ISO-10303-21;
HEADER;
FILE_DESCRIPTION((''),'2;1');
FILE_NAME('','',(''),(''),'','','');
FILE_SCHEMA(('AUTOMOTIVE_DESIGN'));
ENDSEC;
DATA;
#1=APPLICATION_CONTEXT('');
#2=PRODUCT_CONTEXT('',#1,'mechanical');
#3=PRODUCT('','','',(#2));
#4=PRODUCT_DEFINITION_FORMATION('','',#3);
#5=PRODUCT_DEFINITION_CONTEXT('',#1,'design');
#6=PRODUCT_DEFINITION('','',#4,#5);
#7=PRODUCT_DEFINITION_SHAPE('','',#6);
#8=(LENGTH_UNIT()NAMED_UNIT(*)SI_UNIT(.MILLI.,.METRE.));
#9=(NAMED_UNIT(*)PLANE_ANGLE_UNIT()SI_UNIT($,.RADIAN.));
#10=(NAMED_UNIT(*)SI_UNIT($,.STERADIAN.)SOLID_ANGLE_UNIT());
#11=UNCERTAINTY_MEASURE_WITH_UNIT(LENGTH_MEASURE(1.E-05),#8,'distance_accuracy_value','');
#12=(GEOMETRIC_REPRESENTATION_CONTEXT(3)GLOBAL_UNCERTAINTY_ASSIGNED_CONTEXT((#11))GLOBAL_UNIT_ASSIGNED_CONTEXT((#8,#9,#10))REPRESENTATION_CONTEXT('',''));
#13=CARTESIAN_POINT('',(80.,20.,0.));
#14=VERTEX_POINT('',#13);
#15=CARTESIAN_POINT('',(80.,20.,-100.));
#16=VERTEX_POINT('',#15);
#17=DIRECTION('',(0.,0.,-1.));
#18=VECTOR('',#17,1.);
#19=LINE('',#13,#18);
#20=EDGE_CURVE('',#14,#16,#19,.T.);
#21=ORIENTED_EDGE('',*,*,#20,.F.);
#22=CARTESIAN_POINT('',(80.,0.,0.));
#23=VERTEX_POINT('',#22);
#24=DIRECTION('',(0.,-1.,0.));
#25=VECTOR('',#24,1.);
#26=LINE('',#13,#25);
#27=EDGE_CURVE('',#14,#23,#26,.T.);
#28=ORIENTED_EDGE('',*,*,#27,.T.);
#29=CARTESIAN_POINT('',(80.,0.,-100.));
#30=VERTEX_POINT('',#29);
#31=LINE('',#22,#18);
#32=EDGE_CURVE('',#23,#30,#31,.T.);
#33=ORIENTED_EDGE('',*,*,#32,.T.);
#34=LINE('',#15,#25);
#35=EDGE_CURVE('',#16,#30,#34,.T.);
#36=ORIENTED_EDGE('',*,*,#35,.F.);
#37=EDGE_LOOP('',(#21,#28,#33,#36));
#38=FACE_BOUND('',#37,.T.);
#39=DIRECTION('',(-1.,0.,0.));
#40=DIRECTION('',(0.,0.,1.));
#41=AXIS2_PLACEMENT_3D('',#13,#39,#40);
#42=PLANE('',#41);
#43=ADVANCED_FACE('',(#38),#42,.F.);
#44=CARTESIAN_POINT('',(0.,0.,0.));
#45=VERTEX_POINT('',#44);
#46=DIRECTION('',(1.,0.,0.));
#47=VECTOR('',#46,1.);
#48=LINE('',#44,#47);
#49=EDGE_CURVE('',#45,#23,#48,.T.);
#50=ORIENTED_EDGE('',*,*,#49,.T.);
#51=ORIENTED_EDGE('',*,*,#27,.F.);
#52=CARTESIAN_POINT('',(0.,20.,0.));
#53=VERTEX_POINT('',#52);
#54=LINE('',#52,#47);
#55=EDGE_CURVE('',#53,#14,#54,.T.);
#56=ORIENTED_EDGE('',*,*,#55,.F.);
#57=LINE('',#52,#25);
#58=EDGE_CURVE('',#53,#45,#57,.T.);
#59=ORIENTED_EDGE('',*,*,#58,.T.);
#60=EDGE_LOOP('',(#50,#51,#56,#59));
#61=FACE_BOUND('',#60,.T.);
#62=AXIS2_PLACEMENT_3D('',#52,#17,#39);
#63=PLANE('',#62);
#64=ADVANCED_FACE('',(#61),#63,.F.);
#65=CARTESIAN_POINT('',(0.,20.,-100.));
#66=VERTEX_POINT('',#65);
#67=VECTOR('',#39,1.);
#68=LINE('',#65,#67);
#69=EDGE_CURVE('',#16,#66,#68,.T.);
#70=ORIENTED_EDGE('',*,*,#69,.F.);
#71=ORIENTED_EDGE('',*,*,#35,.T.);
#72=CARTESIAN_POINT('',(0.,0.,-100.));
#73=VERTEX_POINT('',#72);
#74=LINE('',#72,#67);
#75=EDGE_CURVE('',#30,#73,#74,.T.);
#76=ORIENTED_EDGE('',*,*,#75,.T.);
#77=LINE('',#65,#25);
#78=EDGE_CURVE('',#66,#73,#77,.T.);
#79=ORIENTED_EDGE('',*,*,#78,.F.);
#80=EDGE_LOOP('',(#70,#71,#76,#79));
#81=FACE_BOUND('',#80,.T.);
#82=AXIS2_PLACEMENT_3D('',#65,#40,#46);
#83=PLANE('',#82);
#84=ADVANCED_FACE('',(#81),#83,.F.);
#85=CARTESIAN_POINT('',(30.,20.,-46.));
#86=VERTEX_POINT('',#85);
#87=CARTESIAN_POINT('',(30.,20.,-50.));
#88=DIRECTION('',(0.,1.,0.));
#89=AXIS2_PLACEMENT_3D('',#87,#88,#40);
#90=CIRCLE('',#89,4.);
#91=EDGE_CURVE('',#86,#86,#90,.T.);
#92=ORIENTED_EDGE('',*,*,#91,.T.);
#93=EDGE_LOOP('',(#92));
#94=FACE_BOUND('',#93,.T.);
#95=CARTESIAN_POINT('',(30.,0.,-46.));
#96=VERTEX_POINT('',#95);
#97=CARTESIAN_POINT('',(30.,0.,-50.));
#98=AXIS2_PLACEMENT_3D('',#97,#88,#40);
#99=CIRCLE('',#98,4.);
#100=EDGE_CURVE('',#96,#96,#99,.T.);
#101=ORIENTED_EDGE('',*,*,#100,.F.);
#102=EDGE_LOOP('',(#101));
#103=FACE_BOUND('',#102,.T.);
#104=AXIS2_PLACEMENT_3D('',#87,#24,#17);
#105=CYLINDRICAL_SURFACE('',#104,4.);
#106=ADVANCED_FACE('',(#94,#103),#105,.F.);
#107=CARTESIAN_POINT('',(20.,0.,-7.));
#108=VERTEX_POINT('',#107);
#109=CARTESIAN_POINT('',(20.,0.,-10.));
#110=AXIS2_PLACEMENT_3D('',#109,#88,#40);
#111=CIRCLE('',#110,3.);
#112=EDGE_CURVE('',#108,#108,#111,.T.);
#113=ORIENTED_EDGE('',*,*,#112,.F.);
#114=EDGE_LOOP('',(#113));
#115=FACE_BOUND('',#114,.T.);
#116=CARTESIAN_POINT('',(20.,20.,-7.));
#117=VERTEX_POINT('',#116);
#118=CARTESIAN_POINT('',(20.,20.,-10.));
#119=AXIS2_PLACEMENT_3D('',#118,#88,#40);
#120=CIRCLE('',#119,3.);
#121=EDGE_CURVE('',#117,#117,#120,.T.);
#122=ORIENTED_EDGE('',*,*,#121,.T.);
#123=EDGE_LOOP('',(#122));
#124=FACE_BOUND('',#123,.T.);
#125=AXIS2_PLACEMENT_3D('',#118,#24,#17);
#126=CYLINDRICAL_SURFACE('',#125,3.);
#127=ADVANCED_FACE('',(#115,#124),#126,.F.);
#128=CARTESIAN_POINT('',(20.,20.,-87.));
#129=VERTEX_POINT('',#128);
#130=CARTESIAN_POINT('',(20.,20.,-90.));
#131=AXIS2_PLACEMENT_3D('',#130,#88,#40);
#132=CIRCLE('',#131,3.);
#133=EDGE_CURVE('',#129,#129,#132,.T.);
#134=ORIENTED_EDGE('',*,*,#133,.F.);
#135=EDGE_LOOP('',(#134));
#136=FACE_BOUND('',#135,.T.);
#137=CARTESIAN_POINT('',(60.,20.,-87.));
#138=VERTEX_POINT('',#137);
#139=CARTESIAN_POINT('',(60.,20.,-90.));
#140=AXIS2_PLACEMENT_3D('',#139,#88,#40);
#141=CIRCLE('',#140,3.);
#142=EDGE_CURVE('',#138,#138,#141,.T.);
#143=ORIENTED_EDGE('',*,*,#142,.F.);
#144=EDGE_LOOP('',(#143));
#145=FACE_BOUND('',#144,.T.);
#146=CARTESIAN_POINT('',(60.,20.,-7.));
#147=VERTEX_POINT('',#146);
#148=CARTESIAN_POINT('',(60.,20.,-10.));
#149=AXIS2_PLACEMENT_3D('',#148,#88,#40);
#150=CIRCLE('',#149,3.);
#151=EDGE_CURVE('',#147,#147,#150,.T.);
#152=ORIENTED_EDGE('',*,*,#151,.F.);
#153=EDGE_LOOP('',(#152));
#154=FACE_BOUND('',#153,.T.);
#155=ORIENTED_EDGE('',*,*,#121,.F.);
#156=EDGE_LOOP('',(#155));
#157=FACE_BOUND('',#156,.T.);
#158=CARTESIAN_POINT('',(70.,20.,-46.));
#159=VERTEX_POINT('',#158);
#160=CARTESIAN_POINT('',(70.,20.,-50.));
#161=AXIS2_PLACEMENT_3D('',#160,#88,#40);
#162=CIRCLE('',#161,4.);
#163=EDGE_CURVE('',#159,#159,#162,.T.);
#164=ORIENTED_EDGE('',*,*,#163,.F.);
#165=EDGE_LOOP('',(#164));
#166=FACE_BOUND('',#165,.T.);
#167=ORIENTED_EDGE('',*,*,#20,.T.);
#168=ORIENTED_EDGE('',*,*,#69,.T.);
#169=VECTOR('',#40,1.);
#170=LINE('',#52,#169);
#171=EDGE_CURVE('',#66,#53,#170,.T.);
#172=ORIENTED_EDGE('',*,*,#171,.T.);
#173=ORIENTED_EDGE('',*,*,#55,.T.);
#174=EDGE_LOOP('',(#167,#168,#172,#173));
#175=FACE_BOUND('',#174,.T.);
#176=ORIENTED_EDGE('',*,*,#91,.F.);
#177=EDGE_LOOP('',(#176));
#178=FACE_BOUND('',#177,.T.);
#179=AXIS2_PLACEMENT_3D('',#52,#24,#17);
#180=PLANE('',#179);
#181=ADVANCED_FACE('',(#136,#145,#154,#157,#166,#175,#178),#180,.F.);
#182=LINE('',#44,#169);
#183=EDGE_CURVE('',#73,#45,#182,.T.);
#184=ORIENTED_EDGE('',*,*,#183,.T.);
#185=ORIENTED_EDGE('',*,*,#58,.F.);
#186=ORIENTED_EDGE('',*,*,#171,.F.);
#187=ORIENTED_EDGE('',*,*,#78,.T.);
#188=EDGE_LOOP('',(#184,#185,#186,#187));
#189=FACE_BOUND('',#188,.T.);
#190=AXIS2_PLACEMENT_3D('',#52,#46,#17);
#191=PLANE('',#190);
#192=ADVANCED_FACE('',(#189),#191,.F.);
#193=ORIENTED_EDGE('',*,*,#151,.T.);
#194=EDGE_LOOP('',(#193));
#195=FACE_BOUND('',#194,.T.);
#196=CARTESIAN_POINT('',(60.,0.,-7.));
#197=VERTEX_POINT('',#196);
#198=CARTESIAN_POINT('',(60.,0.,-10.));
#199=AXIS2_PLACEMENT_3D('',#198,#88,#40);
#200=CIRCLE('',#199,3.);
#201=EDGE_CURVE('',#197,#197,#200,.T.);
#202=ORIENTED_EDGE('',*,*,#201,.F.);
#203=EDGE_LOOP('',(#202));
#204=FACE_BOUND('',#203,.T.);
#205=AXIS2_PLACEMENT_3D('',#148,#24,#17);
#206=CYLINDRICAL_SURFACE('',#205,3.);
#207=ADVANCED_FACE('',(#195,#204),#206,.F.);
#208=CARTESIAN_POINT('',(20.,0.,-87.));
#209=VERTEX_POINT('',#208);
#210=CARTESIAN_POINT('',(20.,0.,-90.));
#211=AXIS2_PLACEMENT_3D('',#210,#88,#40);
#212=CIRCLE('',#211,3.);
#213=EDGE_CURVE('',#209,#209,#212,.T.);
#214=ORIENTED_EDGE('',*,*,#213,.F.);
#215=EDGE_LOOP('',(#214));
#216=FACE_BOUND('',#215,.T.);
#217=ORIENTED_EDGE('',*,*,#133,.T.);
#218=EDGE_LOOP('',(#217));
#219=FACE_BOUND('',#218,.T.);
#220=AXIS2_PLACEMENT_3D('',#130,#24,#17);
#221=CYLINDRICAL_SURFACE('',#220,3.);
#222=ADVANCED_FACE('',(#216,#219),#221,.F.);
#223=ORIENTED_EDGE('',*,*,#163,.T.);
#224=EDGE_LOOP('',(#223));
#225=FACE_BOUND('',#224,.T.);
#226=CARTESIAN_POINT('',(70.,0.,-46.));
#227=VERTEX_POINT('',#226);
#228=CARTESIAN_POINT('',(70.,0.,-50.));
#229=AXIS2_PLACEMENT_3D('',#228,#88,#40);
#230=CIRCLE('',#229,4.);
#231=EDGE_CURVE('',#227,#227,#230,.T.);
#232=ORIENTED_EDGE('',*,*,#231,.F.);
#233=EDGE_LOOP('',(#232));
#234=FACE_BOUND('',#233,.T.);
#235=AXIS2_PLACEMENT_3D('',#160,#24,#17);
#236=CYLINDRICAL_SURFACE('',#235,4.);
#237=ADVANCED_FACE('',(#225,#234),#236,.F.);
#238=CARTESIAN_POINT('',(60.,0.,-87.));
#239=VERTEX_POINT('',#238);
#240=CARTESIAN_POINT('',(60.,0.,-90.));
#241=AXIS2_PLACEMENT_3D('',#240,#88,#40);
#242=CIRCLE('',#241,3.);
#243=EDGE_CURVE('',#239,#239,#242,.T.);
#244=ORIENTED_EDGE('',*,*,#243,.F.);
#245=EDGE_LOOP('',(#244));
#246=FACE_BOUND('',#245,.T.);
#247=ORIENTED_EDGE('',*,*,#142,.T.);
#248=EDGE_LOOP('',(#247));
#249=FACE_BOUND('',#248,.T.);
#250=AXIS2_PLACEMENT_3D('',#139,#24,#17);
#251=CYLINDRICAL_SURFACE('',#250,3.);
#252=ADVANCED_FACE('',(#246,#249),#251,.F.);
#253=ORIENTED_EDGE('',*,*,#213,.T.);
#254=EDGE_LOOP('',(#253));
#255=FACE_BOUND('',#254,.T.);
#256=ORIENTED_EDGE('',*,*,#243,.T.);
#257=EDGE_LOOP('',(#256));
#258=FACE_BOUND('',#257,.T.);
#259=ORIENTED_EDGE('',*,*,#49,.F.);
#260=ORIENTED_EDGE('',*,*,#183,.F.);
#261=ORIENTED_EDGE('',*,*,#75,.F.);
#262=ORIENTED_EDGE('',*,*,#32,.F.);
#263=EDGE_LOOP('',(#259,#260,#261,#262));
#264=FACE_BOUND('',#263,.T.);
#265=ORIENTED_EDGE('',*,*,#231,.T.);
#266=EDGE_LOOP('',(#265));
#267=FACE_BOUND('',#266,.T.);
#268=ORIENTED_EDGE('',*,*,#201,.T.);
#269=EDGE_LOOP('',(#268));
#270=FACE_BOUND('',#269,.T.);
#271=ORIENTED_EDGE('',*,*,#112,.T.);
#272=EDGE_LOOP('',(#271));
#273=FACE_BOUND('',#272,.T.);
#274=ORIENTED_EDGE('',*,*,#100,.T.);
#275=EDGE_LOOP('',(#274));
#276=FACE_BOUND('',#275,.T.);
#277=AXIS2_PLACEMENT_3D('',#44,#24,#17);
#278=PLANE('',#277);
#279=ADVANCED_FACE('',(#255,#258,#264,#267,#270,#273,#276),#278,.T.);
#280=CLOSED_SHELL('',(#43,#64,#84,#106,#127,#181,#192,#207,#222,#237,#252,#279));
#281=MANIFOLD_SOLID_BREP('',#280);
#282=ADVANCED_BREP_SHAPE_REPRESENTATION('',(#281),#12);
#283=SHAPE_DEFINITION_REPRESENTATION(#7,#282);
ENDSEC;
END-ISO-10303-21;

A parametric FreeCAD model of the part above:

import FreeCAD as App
import Part
import Sketcher
from FreeCAD import Vector

doc = App.newDocument("Part")
body = doc.addObject("PartDesign::Body", "Body")

# Sketch on XZ plane
sketch1 = body.newObject("Sketcher::SketchObject", "Sketch")
sketch1.AttachmentSupport = (doc.getObject("XZ_Plane"), [""])
sketch1.MapMode = "FlatFace"
sketch1.addGeometry(Part.LineSegment(Vector(0, -100, 0), Vector(0, 0, 0)), False)
sketch1.addGeometry(Part.LineSegment(Vector(0, 0, 0), Vector(80, 0, 0)), False)
sketch1.addGeometry(Part.LineSegment(Vector(80, 0, 0), Vector(80, -100, 0)), False)
sketch1.addGeometry(Part.LineSegment(Vector(80, -100, 0), Vector(0, -100, 0)), False)
sketch1.addGeometry(Part.Circle(Vector(20, -10, 0), Vector(0, 0, 1), 3), False)
sketch1.addGeometry(Part.Circle(Vector(60, -10, 0), Vector(0, 0, 1), 3), False)
sketch1.addGeometry(Part.Circle(Vector(30, -50, 0), Vector(0, 0, 1), 4), False)
sketch1.addGeometry(Part.Circle(Vector(20, -90, 0), Vector(0, 0, 1), 3), False)
sketch1.addGeometry(Part.Circle(Vector(70, -50, 0), Vector(0, 0, 1), 4), False)
sketch1.addGeometry(Part.Circle(Vector(60, -90, 0), Vector(0, 0, 1), 3), False)
sketch1.addConstraint(Sketcher.Constraint("Coincident", 0, 2, 1, 1))
sketch1.addConstraint(Sketcher.Constraint("Coincident", 1, 2, 2, 1))
sketch1.addConstraint(Sketcher.Constraint("Coincident", 2, 2, 3, 1))
sketch1.addConstraint(Sketcher.Constraint("Coincident", 3, 2, 0, 1))
sketch1.addConstraint(Sketcher.Constraint("Vertical", 0))
sketch1.addConstraint(Sketcher.Constraint("Horizontal", 1))
sketch1.addConstraint(Sketcher.Constraint("Vertical", 2))
sketch1.addConstraint(Sketcher.Constraint("Horizontal", 3))
sketch1.addConstraint(Sketcher.Constraint("Coincident", 0, 2, -1, 1))
sketch1.addConstraint(Sketcher.Constraint("Equal", 4, 5))
sketch1.addConstraint(Sketcher.Constraint("Equal", 5, 7))
sketch1.addConstraint(Sketcher.Constraint("Equal", 6, 8))
sketch1.addConstraint(Sketcher.Constraint("Equal", 7, 9))
sketch1.addConstraint(Sketcher.Constraint("Horizontal", 4, 3, 5, 3))
sketch1.addConstraint(Sketcher.Constraint("Horizontal", 6, 3, 8, 3))
sketch1.addConstraint(Sketcher.Constraint("Horizontal", 7, 3, 9, 3))
sketch1.addConstraint(Sketcher.Constraint("Vertical", 4, 3, 7, 3))
sketch1.addConstraint(Sketcher.Constraint("Vertical", 5, 3, 9, 3))
sketch1.addConstraint(Sketcher.Constraint("Diameter", 4, 6.0))
sketch1.addConstraint(Sketcher.Constraint("Diameter", 6, 8.0))
sketch1.addConstraint(Sketcher.Constraint("DistanceX", 1, 1, 1, 2, 80.0))
sketch1.addConstraint(Sketcher.Constraint("DistanceY", 0, 1, 0, 2, 100.0))
sketch1.addConstraint(Sketcher.Constraint("DistanceX", -1, 1, 4, 3, 20.0))
sketch1.addConstraint(Sketcher.Constraint("DistanceY", 4, 3, -1, 1, 10.0))
sketch1.addConstraint(Sketcher.Constraint("DistanceX", -1, 1, 5, 3, 60.0))
sketch1.addConstraint(Sketcher.Constraint("DistanceX", -1, 1, 6, 3, 30.0))
sketch1.addConstraint(Sketcher.Constraint("DistanceY", 6, 3, -1, 1, 50.0))
sketch1.addConstraint(Sketcher.Constraint("DistanceY", 7, 3, -1, 1, 90.0))
sketch1.addConstraint(Sketcher.Constraint("DistanceX", -1, 1, 8, 3, 70.0))
pad1 = body.newObject("PartDesign::Pad", "Pad")
pad1.Profile = sketch1
pad1.Length = 20
pad1.Reversed = True

doc.recompute()
